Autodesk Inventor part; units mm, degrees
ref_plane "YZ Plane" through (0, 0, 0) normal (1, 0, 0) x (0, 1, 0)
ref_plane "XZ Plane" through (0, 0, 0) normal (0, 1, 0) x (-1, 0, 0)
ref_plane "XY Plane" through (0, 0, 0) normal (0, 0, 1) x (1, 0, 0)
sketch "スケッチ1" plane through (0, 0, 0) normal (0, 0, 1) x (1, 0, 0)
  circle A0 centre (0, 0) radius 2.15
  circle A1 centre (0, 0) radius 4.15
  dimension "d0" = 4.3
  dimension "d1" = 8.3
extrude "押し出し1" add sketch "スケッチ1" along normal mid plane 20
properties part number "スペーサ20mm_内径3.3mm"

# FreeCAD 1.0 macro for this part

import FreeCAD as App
import Part
import Sketcher
from FreeCAD import Vector

doc = App.newDocument("Part")
body = doc.addObject("PartDesign::Body", "Body")

sketch1 = body.newObject("Sketcher::SketchObject", "Sketch")
sketch1.AttachmentSupport = (doc.getObject("XY_Plane"), [""])
sketch1.MapMode = "FlatFace"
sketch1.addGeometry([
    Part.Circle(Vector(0, 0, 0), Vector(0, 0, 1), 4.2),
    Part.Circle(Vector(0, 0, 0), Vector(0, 0, 1), 2.1),
], False)
sketch1.addConstraint([
    Sketcher.Constraint("Coincident", 0, 3, -1, 1),
    Sketcher.Constraint("Coincident", 1, 3, -1, 1),
    Sketcher.Constraint("Diameter", 0, 8.3),
    Sketcher.Constraint("Diameter", 1, 4.3),
])
pad1 = body.newObject("PartDesign::Pad", "Pad")
pad1.Profile = sketch1
pad1.Length = 20
pad1.Midplane = True

doc.recompute()
